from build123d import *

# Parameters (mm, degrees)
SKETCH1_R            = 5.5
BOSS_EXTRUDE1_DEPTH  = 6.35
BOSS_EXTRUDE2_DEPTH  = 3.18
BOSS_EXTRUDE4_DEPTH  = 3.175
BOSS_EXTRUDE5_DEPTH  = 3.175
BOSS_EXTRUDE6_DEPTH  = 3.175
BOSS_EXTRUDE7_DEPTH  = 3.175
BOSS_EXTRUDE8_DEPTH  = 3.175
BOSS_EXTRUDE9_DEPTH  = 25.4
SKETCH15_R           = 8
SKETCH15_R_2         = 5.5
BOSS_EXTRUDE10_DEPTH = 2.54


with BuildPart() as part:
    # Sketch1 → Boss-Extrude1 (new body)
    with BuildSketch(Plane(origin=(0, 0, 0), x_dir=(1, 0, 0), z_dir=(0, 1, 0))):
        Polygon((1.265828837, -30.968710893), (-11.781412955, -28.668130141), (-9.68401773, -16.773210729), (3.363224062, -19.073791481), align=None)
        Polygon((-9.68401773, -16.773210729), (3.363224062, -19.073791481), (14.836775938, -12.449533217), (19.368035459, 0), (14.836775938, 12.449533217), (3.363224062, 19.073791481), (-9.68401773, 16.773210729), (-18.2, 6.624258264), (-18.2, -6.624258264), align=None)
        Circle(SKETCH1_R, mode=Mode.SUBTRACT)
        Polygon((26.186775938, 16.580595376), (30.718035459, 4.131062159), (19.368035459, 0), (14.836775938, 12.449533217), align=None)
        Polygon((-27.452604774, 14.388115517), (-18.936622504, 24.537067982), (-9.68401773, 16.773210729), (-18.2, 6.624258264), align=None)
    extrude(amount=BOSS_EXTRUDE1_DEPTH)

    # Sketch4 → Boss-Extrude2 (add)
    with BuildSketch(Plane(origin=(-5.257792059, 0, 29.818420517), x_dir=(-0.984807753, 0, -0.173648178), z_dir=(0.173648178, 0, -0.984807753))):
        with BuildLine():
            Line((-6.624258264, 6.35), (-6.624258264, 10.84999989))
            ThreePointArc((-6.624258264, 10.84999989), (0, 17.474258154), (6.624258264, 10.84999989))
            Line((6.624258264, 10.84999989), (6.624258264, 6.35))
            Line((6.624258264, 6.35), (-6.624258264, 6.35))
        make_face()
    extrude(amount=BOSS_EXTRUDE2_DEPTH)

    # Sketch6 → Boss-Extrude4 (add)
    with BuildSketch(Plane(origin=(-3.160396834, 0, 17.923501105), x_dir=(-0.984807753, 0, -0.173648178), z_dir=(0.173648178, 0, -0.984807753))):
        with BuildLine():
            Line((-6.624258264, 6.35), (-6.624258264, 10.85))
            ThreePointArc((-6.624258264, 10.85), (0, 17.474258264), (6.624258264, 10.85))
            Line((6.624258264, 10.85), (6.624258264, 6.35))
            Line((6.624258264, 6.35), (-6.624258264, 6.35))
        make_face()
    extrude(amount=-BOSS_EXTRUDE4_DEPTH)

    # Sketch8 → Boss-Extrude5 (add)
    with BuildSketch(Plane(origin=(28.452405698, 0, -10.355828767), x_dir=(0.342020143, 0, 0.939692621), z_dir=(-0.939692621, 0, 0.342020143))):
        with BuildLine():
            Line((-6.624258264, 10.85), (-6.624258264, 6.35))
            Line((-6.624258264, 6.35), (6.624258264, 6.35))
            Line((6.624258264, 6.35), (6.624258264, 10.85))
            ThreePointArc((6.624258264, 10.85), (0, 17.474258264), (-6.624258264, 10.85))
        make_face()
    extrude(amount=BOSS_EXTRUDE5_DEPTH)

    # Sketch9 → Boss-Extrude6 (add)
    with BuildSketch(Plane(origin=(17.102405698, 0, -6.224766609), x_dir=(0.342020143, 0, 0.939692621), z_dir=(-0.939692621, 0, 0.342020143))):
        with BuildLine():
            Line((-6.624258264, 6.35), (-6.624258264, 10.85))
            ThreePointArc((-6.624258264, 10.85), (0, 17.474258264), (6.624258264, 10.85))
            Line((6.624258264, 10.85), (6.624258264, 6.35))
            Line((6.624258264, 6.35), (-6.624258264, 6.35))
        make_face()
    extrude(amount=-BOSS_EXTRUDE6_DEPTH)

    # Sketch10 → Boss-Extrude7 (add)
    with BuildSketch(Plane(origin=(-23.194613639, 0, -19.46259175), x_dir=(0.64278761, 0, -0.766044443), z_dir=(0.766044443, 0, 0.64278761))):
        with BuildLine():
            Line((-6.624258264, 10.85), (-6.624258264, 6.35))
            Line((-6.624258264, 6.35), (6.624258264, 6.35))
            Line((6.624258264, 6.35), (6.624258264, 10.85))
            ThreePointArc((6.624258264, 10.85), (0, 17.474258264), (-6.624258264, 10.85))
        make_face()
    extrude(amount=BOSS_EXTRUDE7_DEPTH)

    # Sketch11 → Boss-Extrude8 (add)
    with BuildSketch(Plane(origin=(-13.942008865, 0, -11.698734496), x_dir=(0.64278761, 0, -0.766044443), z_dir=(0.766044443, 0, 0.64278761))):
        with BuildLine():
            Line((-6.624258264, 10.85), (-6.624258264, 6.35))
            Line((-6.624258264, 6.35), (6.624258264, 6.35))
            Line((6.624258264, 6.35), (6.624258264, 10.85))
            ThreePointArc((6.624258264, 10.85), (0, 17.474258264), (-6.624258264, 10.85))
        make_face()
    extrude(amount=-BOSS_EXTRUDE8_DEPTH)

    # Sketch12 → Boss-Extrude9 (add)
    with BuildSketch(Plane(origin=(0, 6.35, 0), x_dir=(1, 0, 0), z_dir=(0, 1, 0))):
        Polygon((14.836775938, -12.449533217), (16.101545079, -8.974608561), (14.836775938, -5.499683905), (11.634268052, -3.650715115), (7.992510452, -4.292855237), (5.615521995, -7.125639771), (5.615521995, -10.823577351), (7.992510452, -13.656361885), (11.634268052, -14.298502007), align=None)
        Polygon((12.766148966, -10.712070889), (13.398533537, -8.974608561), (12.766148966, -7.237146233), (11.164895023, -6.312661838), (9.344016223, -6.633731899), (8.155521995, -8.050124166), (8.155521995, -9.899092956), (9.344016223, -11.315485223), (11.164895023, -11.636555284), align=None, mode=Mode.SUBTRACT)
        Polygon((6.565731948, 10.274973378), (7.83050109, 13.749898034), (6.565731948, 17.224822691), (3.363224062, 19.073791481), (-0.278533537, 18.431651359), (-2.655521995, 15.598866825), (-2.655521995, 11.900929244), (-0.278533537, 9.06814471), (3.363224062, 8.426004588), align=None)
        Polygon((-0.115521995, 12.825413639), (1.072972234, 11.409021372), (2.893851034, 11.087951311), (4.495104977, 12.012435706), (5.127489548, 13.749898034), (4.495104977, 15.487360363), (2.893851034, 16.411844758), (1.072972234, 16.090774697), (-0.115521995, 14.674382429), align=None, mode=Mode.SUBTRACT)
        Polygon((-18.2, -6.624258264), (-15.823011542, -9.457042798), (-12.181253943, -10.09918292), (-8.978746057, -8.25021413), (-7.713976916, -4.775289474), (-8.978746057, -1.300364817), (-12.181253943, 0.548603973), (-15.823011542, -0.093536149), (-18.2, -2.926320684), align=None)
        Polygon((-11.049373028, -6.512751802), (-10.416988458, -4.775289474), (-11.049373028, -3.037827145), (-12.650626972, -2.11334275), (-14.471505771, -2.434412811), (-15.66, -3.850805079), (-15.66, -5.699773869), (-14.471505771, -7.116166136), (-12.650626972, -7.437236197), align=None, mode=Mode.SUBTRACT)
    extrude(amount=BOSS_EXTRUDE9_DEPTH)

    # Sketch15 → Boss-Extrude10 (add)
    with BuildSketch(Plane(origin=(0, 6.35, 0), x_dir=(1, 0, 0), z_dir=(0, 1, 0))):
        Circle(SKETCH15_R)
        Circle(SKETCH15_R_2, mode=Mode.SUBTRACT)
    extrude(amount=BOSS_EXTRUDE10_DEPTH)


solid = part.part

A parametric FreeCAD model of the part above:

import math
import FreeCAD as App
import Part
import Sketcher

V = App.Vector
Q = App.Units.Quantity

doc = App.newDocument("Part")
body = doc.addObject("PartDesign::Body", "Body")

sketch1 = body.newObject("Sketcher::SketchObject", "Sketch")
sketch1.AttachmentSupport = (doc.getObject("XZ_Plane"), [""])
sketch1.MapMode = "FlatFace"
sketch1.addGeometry([
    Part.LineSegment(V(-12, 29, 0), V(1, 31, 0)),
    Part.LineSegment(V(1, 31, 0), V(3, 19, 0)),
    Part.LineSegment(V(3, 19, 0), V(15, 12, 0)),
    Part.LineSegment(V(15, 12, 0), V(19, 0, 0)),
    Part.LineSegment(V(19, 0, 0), V(31, -4, 0)),
    Part.LineSegment(V(31, -4, 0), V(26, -17, 0)),
    Part.LineSegment(V(26, -17, 0), V(15, -12, 0)),
    Part.LineSegment(V(15, -12, 0), V(3, -19, 0)),
    Part.LineSegment(V(3, -19, 0), V(-10, -17, 0)),
    Part.LineSegment(V(-10, -17, 0), V(-19, -25, 0)),
    Part.LineSegment(V(-19, -25, 0), V(-27, -14, 0)),
    Part.LineSegment(V(-27, -14, 0), V(-18, -7, 0)),
    Part.LineSegment(V(-18, -7, 0), V(-18, 7, 0)),
    Part.LineSegment(V(-18, 7, 0), V(-10, 17, 0)),
    Part.LineSegment(V(-10, 17, 0), V(-12, 29, 0)),
    Part.Circle(V(0, 0, 0), V(0, 0, 1), 6),
], False)
sketch1.addConstraint([
    Sketcher.Constraint("Coincident", 0, 2, 1, 1),
    Sketcher.Constraint("Coincident", 1, 2, 2, 1),
    Sketcher.Constraint("Coincident", 2, 2, 3, 1),
    Sketcher.Constraint("Coincident", 3, 2, 4, 1),
    Sketcher.Constraint("Coincident", 4, 2, 5, 1),
    Sketcher.Constraint("Coincident", 5, 2, 6, 1),
    Sketcher.Constraint("Coincident", 6, 2, 7, 1),
    Sketcher.Constraint("Coincident", 7, 2, 8, 1),
    Sketcher.Constraint("Coincident", 8, 2, 9, 1),
    Sketcher.Constraint("Coincident", 9, 2, 10, 1),
    Sketcher.Constraint("Coincident", 10, 2, 11, 1),
    Sketcher.Constraint("Coincident", 11, 2, 12, 1),
    Sketcher.Constraint("Coincident", 12, 2, 13, 1),
    Sketcher.Constraint("Coincident", 13, 2, 14, 1),
    Sketcher.Constraint("Coincident", 14, 2, 0, 1),
    Sketcher.Constraint("Vertical", 12),
    Sketcher.Constraint("Coincident", 15, 3, -1, 1),
    Sketcher.Constraint("Symmetric", 2, 2, 6, 2, -1),
    Sketcher.Constraint("Symmetric", 1, 2, 7, 2, -1),
    Sketcher.Constraint("Symmetric", 8, 2, 13, 2, -1),
    Sketcher.Constraint("PointOnObject", 3, 2, -1),
    Sketcher.Constraint("Perpendicular", 0, 1),
    Sketcher.Constraint("Perpendicular", 4, 5),
    Sketcher.Constraint("Perpendicular", 5, 6),
    Sketcher.Constraint("Perpendicular", 9, 10),
    Sketcher.Constraint("Perpendicular", 10, 11),
    Sketcher.Constraint("Parallel", 1, 14),
    Sketcher.Constraint("Equal", 0, 2),
    Sketcher.Constraint("Equal", 2, 3),
    Sketcher.Constraint("Equal", 1, 4),
    Sketcher.Constraint("Equal", 4, 6),
    Sketcher.Constraint("Equal", 6, 9),
    Sketcher.Constraint("Equal", 8, 10),
    Sketcher.Constraint("Equal", 9, 11),
    Sketcher.Constraint("Equal", 10, 13),
    Sketcher.Constraint("Equal", 11, 14),
    Sketcher.Constraint("Angle", 0, Q("10 deg")),
    Sketcher.Constraint("Angle", 2, Q("-30 deg")),
    Sketcher.Constraint("Angle", 3, Q("-70 deg")),
    Sketcher.Constraint("Angle", 9, Q("-140 deg")),
    Sketcher.Constraint("Diameter", 15, 11.0),
    Sketcher.Constraint("DistanceX", 11, 2, -1, 1, 18.2),
    Sketcher.Constraint("DistanceX", 3, 2, 4, 2, 11.35),
    Sketcher.Constraint("DistanceX", 9, 2, 6, 2, 33.773398),
])
pad1 = body.newObject("PartDesign::Pad", "Pad")
pad1.Profile = sketch1
pad1.Length = Q("0.25 in")
pad1.Reversed = True

sketch2 = body.newObject("Sketcher::SketchObject", "Sketch001")
sketch2.Placement = App.Placement(V(-5.257792, 0, 29.818421), App.Rotation(V(-0.984807753, 0, -0.173648178), V(0, 1, 0), V(0.173648178, 0, -0.984807753), "ZXY"))
sketch2.addGeometry([
    Part.LineSegment(V(-6.6, 10.8, 0), V(-6.6, 6.4, 0)),
    Part.LineSegment(V(-6.6, 6.4, 0), V(6.6, 6.4, 0)),
    Part.LineSegment(V(6.6, 6.4, 0), V(6.6, 10.8, 0)),
    Part.ArcOfCircle(Part.Circle(V(0, 10.8, 0), V(0, 0, 1), 6.6), math.radians(0), math.radians(180)),
], False)
sketch2.addConstraint([
    Sketcher.Constraint("Coincident", 0, 2, 1, 1),
    Sketcher.Constraint("Coincident", 1, 2, 2, 1),
    Sketcher.Constraint("Tangent", 2, 2, 3, 1),
    Sketcher.Constraint("Tangent", 3, 2, 0, 1),
    Sketcher.Constraint("Vertical", 0),
    Sketcher.Constraint("Horizontal", 1),
    Sketcher.Constraint("Vertical", 2),
    Sketcher.Constraint("PointOnObject", 3, 3, -2),
    Sketcher.Constraint("DistanceY", -1, 1, 0, 2, Q("0.25 in")),
    Sketcher.Constraint("Radius", 3, 6.624258),
    Sketcher.Constraint("DistanceY", 0, 2, 0, 1, 4.5),
])
pad2 = body.newObject("PartDesign::Pad", "Pad001")
pad2.Profile = sketch2
pad2.Length = 3.18

sketch3 = body.newObject("Sketcher::SketchObject", "Sketch002")
sketch3.Placement = App.Placement(V(-3.160397, 0, 17.923501), App.Rotation(V(-0.984807753, 0, -0.173648178), V(0, 1, 0), V(0.173648178, 0, -0.984807753), "ZXY"))
sketch3.addGeometry([
    Part.LineSegment(V(-6.6, 10.9, 0), V(-6.6, 6.4, 0)),
    Part.LineSegment(V(-6.6, 6.4, 0), V(6.6, 6.4, 0)),
    Part.LineSegment(V(6.6, 6.4, 0), V(6.6, 10.9, 0)),
    Part.ArcOfCircle(Part.Circle(V(0, 10.9, 0), V(0, 0, 1), 6.6), math.radians(0), math.radians(180)),
], False)
sketch3.addConstraint([
    Sketcher.Constraint("Coincident", 0, 2, 1, 1),
    Sketcher.Constraint("Coincident", 1, 2, 2, 1),
    Sketcher.Constraint("Tangent", 2, 2, 3, 1),
    Sketcher.Constraint("Tangent", 3, 2, 0, 1),
    Sketcher.Constraint("Vertical", 0),
    Sketcher.Constraint("Horizontal", 1),
    Sketcher.Constraint("Vertical", 2),
    Sketcher.Constraint("PointOnObject", 3, 3, -2),
    Sketcher.Constraint("DistanceY", -1, 1, 0, 2, Q("0.25 in")),
    Sketcher.Constraint("Radius", 3, 6.624258),
    Sketcher.Constraint("DistanceY", 0, 2, 0, 1, 4.5),
])
pad3 = body.newObject("PartDesign::Pad", "Pad002")
pad3.Profile = sketch3
pad3.Length = Q("0.125 in")
pad3.Reversed = True

sketch4 = body.newObject("Sketcher::SketchObject", "Sketch003")
sketch4.Placement = App.Placement(V(28.452406, 0, -10.355829), App.Rotation(V(0.342020143, 0, 0.939692621), V(0, 1, 0), V(-0.939692621, 0, 0.342020143), "ZXY"))
sketch4.addGeometry([
    Part.LineSegment(V(-6.6, 10.9, 0), V(-6.6, 6.4, 0)),
    Part.LineSegment(V(-6.6, 6.4, 0), V(6.6, 6.4, 0)),
    Part.LineSegment(V(6.6, 6.4, 0), V(6.6, 10.9, 0)),
    Part.ArcOfCircle(Part.Circle(V(0, 10.9, 0), V(0, 0, 1), 6.6), math.radians(0), math.radians(180)),
], False)
sketch4.addConstraint([
    Sketcher.Constraint("Coincident", 0, 2, 1, 1),
    Sketcher.Constraint("Coincident", 1, 2, 2, 1),
    Sketcher.Constraint("Tangent", 2, 2, 3, 1),
    Sketcher.Constraint("Tangent", 3, 2, 0, 1),
    Sketcher.Constraint("Vertical", 0),
    Sketcher.Constraint("Horizontal", 1),
    Sketcher.Constraint("Vertical", 2),
    Sketcher.Constraint("PointOnObject", 3, 3, -2),
    Sketcher.Constraint("DistanceY", -1, 1, 0, 2, Q("0.25 in")),
    Sketcher.Constraint("Radius", 3, 6.624258),
    Sketcher.Constraint("DistanceY", 0, 2, 0, 1, 4.5),
])
pad4 = body.newObject("PartDesign::Pad", "Pad003")
pad4.Profile = sketch4
pad4.Length = Q("0.125 in")

sketch5 = body.newObject("Sketcher::SketchObject", "Sketch004")
sketch5.Placement = App.Placement(V(17.102406, 0, -6.224767), App.Rotation(V(0.342020143, 0, 0.939692621), V(0, 1, 0), V(-0.939692621, 0, 0.342020143), "ZXY"))
sketch5.addGeometry([
    Part.LineSegment(V(-6.6, 10.9, 0), V(-6.6, 6.4, 0)),
    Part.LineSegment(V(-6.6, 6.4, 0), V(6.6, 6.4, 0)),
    Part.LineSegment(V(6.6, 6.4, 0), V(6.6, 10.9, 0)),
    Part.ArcOfCircle(Part.Circle(V(0, 10.9, 0), V(0, 0, 1), 6.6), math.radians(0), math.radians(180)),
], False)
sketch5.addConstraint([
    Sketcher.Constraint("Coincident", 0, 2, 1, 1),
    Sketcher.Constraint("Coincident", 1, 2, 2, 1),
    Sketcher.Constraint("Tangent", 2, 2, 3, 1),
    Sketcher.Constraint("Tangent", 3, 2, 0, 1),
    Sketcher.Constraint("Vertical", 0),
    Sketcher.Constraint("Horizontal", 1),
    Sketcher.Constraint("Vertical", 2),
    Sketcher.Constraint("PointOnObject", 3, 3, -2),
    Sketcher.Constraint("DistanceY", -1, 1, 0, 2, Q("0.25 in")),
    Sketcher.Constraint("Radius", 3, 6.624258),
    Sketcher.Constraint("DistanceY", 0, 2, 0, 1, 4.5),
])
pad5 = body.newObject("PartDesign::Pad", "Pad004")
pad5.Profile = sketch5
pad5.Length = Q("0.125 in")
pad5.Reversed = True

sketch6 = body.newObject("Sketcher::SketchObject", "Sketch005")
sketch6.Placement = App.Placement(V(-23.194614, 0, -19.462592), App.Rotation(V(0.64278761, 0, -0.766044443), V(0, 1, 0), V(0.766044443, 0, 0.64278761), "ZXY"))
sketch6.addGeometry([
    Part.LineSegment(V(-6.6, 10.9, 0), V(-6.6, 6.4, 0)),
    Part.LineSegment(V(-6.6, 6.4, 0), V(6.6, 6.4, 0)),
    Part.LineSegment(V(6.6, 6.4, 0), V(6.6, 10.9, 0)),
    Part.ArcOfCircle(Part.Circle(V(0, 10.9, 0), V(0, 0, 1), 6.6), math.radians(0), math.radians(180)),
], False)
sketch6.addConstraint([
    Sketcher.Constraint("Coincident", 0, 2, 1, 1),
    Sketcher.Constraint("Coincident", 1, 2, 2, 1),
    Sketcher.Constraint("Tangent", 2, 2, 3, 1),
    Sketcher.Constraint("Tangent", 3, 2, 0, 1),
    Sketcher.Constraint("Vertical", 0),
    Sketcher.Constraint("Horizontal", 1),
    Sketcher.Constraint("Vertical", 2),
    Sketcher.Constraint("PointOnObject", 3, 3, -2),
    Sketcher.Constraint("DistanceY", -1, 1, 0, 2, Q("0.25 in")),
    Sketcher.Constraint("Radius", 3, 6.624258),
    Sketcher.Constraint("DistanceY", 0, 2, 0, 1, 4.5),
])
pad6 = body.newObject("PartDesign::Pad", "Pad005")
pad6.Profile = sketch6
pad6.Length = Q("0.125 in")

sketch7 = body.newObject("Sketcher::SketchObject", "Sketch006")
sketch7.Placement = App.Placement(V(-13.942009, 0, -11.698734), App.Rotation(V(0.64278761, 0, -0.766044443), V(0, 1, 0), V(0.766044443, 0, 0.64278761), "ZXY"))
sketch7.addGeometry([
    Part.LineSegment(V(-6.6, 10.9, 0), V(-6.6, 6.4, 0)),
    Part.LineSegment(V(-6.6, 6.4, 0), V(6.6, 6.4, 0)),
    Part.LineSegment(V(6.6, 6.4, 0), V(6.6, 10.9, 0)),
    Part.ArcOfCircle(Part.Circle(V(0, 10.9, 0), V(0, 0, 1), 6.6), math.radians(0), math.radians(180)),
], False)
sketch7.addConstraint([
    Sketcher.Constraint("Coincident", 0, 2, 1, 1),
    Sketcher.Constraint("Coincident", 1, 2, 2, 1),
    Sketcher.Constraint("Tangent", 2, 2, 3, 1),
    Sketcher.Constraint("Tangent", 3, 2, 0, 1),
    Sketcher.Constraint("Vertical", 0),
    Sketcher.Constraint("Horizontal", 1),
    Sketcher.Constraint("Vertical", 2),
    Sketcher.Constraint("PointOnObject", 3, 3, -2),
    Sketcher.Constraint("DistanceY", -1, 1, 0, 2, Q("0.25 in")),
    Sketcher.Constraint("Radius", 3, 6.624258),
    Sketcher.Constraint("DistanceY", 0, 2, 0, 1, 4.5),
])
pad7 = body.newObject("PartDesign::Pad", "Pad006")
pad7.Profile = sketch7
pad7.Length = Q("0.125 in")
pad7.Reversed = True

sketch8 = body.newObject("Sketcher::SketchObject", "Sketch007")
sketch8.AttachmentSupport = (doc.getObject("XZ_Plane"), [""])
sketch8.MapMode = "FlatFace"
sketch8.AttachmentOffset = App.Placement(V(0, 0, -0.25 * 25.4), App.Rotation())
sketch8.addGeometry([
    Part.LineSegment(V(14.8, 12.4, 0), V(16.1, 9, 0)),
    Part.LineSegment(V(16.1, 9, 0), V(14.8, 5.5, 0)),
    Part.LineSegment(V(14.8, 5.5, 0), V(11.6, 3.7, 0)),
    Part.LineSegment(V(11.6, 3.7, 0), V(8, 4.3, 0)),
    Part.LineSegment(V(8, 4.3, 0), V(5.6, 7.1, 0)),
    Part.LineSegment(V(5.6, 7.1, 0), V(5.6, 10.8, 0)),
    Part.LineSegment(V(5.6, 10.8, 0), V(8, 13.7, 0)),
    Part.LineSegment(V(8, 13.7, 0), V(11.6, 14.3, 0)),
    Part.LineSegment(V(11.6, 14.3, 0), V(14.8, 12.4, 0)),
    Part.LineSegment(V(13.4, 9, 0), V(12.8, 10.7, 0)),
    Part.LineSegment(V(12.8, 10.7, 0), V(11.2, 11.6, 0)),
    Part.LineSegment(V(11.2, 11.6, 0), V(9.3, 11.3, 0)),
    Part.LineSegment(V(9.3, 11.3, 0), V(8.2, 9.9, 0)),
    Part.LineSegment(V(8.2, 9.9, 0), V(8.2, 8.1, 0)),
    Part.LineSegment(V(8.2, 8.1, 0), V(9.3, 6.6, 0)),
    Part.LineSegment(V(9.3, 6.6, 0), V(11.2, 6.3, 0)),
    Part.LineSegment(V(11.2, 6.3, 0), V(12.8, 7.2, 0)),
    Part.LineSegment(V(12.8, 7.2, 0), V(13.4, 9, 0)),
    Part.LineSegment(V(6.6, -10.3, 0), V(7.8, -13.7, 0)),
    Part.LineSegment(V(7.8, -13.7, 0), V(6.6, -17.2, 0)),
    Part.LineSegment(V(6.6, -17.2, 0), V(3.4, -19.1, 0)),
    Part.LineSegment(V(3.4, -19.1, 0), V(-0.3, -18.4, 0)),
    Part.LineSegment(V(-0.3, -18.4, 0), V(-2.7, -15.6, 0)),
    Part.LineSegment(V(-2.7, -15.6, 0), V(-2.7, -11.9, 0)),
    Part.LineSegment(V(-2.7, -11.9, 0), V(-0.3, -9.1, 0)),
    Part.LineSegment(V(-0.3, -9.1, 0), V(3.4, -8.4, 0)),
    Part.LineSegment(V(3.4, -8.4, 0), V(6.6, -10.3, 0)),
    Part.LineSegment(V(1.1, -11.4, 0), V(-0.1, -12.8, 0)),
    Part.LineSegment(V(-0.1, -12.8, 0), V(-0.1, -14.7, 0)),
    Part.LineSegment(V(-0.1, -14.7, 0), V(1.1, -16.1, 0)),
    Part.LineSegment(V(1.1, -16.1, 0), V(2.9, -16.4, 0)),
    Part.LineSegment(V(2.9, -16.4, 0), V(4.5, -15.5, 0)),
    Part.LineSegment(V(4.5, -15.5, 0), V(5.1, -13.7, 0)),
    Part.LineSegment(V(5.1, -13.7, 0), V(4.5, -12, 0)),
    Part.LineSegment(V(4.5, -12, 0), V(2.9, -11.1, 0)),
    Part.LineSegment(V(2.9, -11.1, 0), V(1.1, -11.4, 0)),
    Part.LineSegment(V(-18.2, 6.6, 0), V(-15.8, 9.5, 0)),
    Part.LineSegment(V(-15.8, 9.5, 0), V(-12.2, 10.1, 0)),
    Part.LineSegment(V(-12.2, 10.1, 0), V(-9, 8.3, 0)),
    Part.LineSegment(V(-9, 8.3, 0), V(-7.7, 4.8, 0)),
    Part.LineSegment(V(-7.7, 4.8, 0), V(-9, 1.3, 0)),
    Part.LineSegment(V(-9, 1.3, 0), V(-12.2, -0.5, 0)),
    Part.LineSegment(V(-12.2, -0.5, 0), V(-15.8, 0.1, 0)),
    Part.LineSegment(V(-15.8, 0.1, 0), V(-18.2, 2.9, 0)),
    Part.LineSegment(V(-18.2, 2.9, 0), V(-18.2, 6.6, 0)),
    Part.LineSegment(V(-10.4, 4.8, 0), V(-11, 6.5, 0)),
    Part.LineSegment(V(-11, 6.5, 0), V(-12.7, 7.4, 0)),
    Part.LineSegment(V(-12.7, 7.4, 0), V(-14.5, 7.1, 0)),
    Part.LineSegment(V(-14.5, 7.1, 0), V(-15.7, 5.7, 0)),
    Part.LineSegment(V(-15.7, 5.7, 0), V(-15.7, 3.9, 0)),
    Part.LineSegment(V(-15.7, 3.9, 0), V(-14.5, 2.4, 0)),
    Part.LineSegment(V(-14.5, 2.4, 0), V(-12.7, 2.1, 0)),
    Part.LineSegment(V(-12.7, 2.1, 0), V(-11, 3, 0)),
    Part.LineSegment(V(-11, 3, 0), V(-10.4, 4.8, 0)),
], False)
sketch8.addConstraint([
    Sketcher.Constraint("Coincident", 0, 2, 1, 1),
    Sketcher.Constraint("Coincident", 1, 2, 2, 1),
    Sketcher.Constraint("Coincident", 2, 2, 3, 1),
    Sketcher.Constraint("Coincident", 3, 2, 4, 1),
    Sketcher.Constraint("Coincident", 4, 2, 5, 1),
    Sketcher.Constraint("Coincident", 5, 2, 6, 1),
    Sketcher.Constraint("Coincident", 6, 2, 7, 1),
    Sketcher.Constraint("Coincident", 7, 2, 8, 1),
    Sketcher.Constraint("Coincident", 8, 2, 0, 1),
    Sketcher.Constraint("Coincident", 9, 2, 10, 1),
    Sketcher.Constraint("Coincident", 10, 2, 11, 1),
    Sketcher.Constraint("Coincident", 11, 2, 12, 1),
    Sketcher.Constraint("Coincident", 12, 2, 13, 1),
    Sketcher.Constraint("Coincident", 13, 2, 14, 1),
    Sketcher.Constraint("Coincident", 14, 2, 15, 1),
    Sketcher.Constraint("Coincident", 15, 2, 16, 1),
    Sketcher.Constraint("Coincident", 16, 2, 17, 1),
    Sketcher.Constraint("Coincident", 17, 2, 9, 1),
    Sketcher.Constraint("Coincident", 18, 2, 19, 1),
    Sketcher.Constraint("Coincident", 19, 2, 20, 1),
    Sketcher.Constraint("Coincident", 20, 2, 21, 1),
    Sketcher.Constraint("Coincident", 21, 2, 22, 1),
    Sketcher.Constraint("Coincident", 22, 2, 23, 1),
    Sketcher.Constraint("Coincident", 23, 2, 24, 1),
    Sketcher.Constraint("Coincident", 24, 2, 25, 1),
    Sketcher.Constraint("Coincident", 25, 2, 26, 1),
    Sketcher.Constraint("Coincident", 26, 2, 18, 1),
    Sketcher.Constraint("Coincident", 27, 2, 28, 1),
    Sketcher.Constraint("Coincident", 28, 2, 29, 1),
    Sketcher.Constraint("Coincident", 29, 2, 30, 1),
    Sketcher.Constraint("Coincident", 30, 2, 31, 1),
    Sketcher.Constraint("Coincident", 31, 2, 32, 1),
    Sketcher.Constraint("Coincident", 32, 2, 33, 1),
    Sketcher.Constraint("Coincident", 33, 2, 34, 1),
    Sketcher.Constraint("Coincident", 34, 2, 35, 1),
    Sketcher.Constraint("Coincident", 35, 2, 27, 1),
    Sketcher.Constraint("Coincident", 36, 2, 37, 1),
    Sketcher.Constraint("Coincident", 37, 2, 38, 1),
    Sketcher.Constraint("Coincident", 38, 2, 39, 1),
    Sketcher.Constraint("Coincident", 39, 2, 40, 1),
    Sketcher.Constraint("Coincident", 40, 2, 41, 1),
    Sketcher.Constraint("Coincident", 41, 2, 42, 1),
    Sketcher.Constraint("Coincident", 42, 2, 43, 1),
    Sketcher.Constraint("Coincident", 43, 2, 44, 1),
    Sketcher.Constraint("Coincident", 44, 2, 36, 1),
    Sketcher.Constraint("Coincident", 45, 2, 46, 1),
    Sketcher.Constraint("Coincident", 46, 2, 47, 1),
    Sketcher.Constraint("Coincident", 47, 2, 48, 1),
    Sketcher.Constraint("Coincident", 48, 2, 49, 1),
    Sketcher.Constraint("Coincident", 49, 2, 50, 1),
    Sketcher.Constraint("Coincident", 50, 2, 51, 1),
    Sketcher.Constraint("Coincident", 51, 2, 52, 1),
    Sketcher.Constraint("Coincident", 52, 2, 53, 1),
    Sketcher.Constraint("Coincident", 53, 2, 45, 1),
    Sketcher.Constraint("Vertical", 5),
    Sketcher.Constraint("Vertical", 13),
    Sketcher.Constraint("Vertical", 23),
    Sketcher.Constraint("Vertical", 28),
    Sketcher.Constraint("Vertical", 44),
    Sketcher.Constraint("Vertical", 49),
    Sketcher.Constraint("Parallel", 0, 9),
    Sketcher.Constraint("Parallel", 8, 10),
    Sketcher.Constraint("Parallel", 7, 11),
    Sketcher.Constraint("Parallel", 6, 12),
    Sketcher.Constraint("Parallel", 4, 14),
    Sketcher.Constraint("Parallel", 3, 15),
    Sketcher.Constraint("Parallel", 2, 16),
    Sketcher.Constraint("Parallel", 1, 17),
    Sketcher.Constraint("Parallel", 9, 18),
    Sketcher.Constraint("Parallel", 17, 19),
    Sketcher.Constraint("Parallel", 16, 20),
    Sketcher.Constraint("Parallel", 15, 21),
    Sketcher.Constraint("Parallel", 14, 22),
    Sketcher.Constraint("Parallel", 12, 24),
    Sketcher.Constraint("Parallel", 11, 25),
    Sketcher.Constraint("Parallel", 10, 26),
    Sketcher.Constraint("Parallel", 24, 27),
    Sketcher.Constraint("Parallel", 22, 29),
    Sketcher.Constraint("Parallel", 21, 30),
    Sketcher.Constraint("Parallel", 20, 31),
    Sketcher.Constraint("Parallel", 19, 32),
    Sketcher.Constraint("Parallel", 18, 33),
    Sketcher.Constraint("Parallel", 26, 34),
    Sketcher.Constraint("Parallel", 25, 35),
    Sketcher.Constraint("Parallel", 27, 36),
    Sketcher.Constraint("Parallel", 35, 37),
    Sketcher.Constraint("Parallel", 34, 38),
    Sketcher.Constraint("Parallel", 33, 39),
    Sketcher.Constraint("Parallel", 32, 40),
    Sketcher.Constraint("Parallel", 31, 41),
    Sketcher.Constraint("Parallel", 30, 42),
    Sketcher.Constraint("Parallel", 29, 43),
    Sketcher.Constraint("Parallel", 39, 45),
    Sketcher.Constraint("Parallel", 38, 46),
    Sketcher.Constraint("Parallel", 37, 47),
    Sketcher.Constraint("Parallel", 36, 48),
    Sketcher.Constraint("Parallel", 43, 50),
    Sketcher.Constraint("Parallel", 42, 51),
    Sketcher.Constraint("Parallel", 41, 52),
    Sketcher.Constraint("Parallel", 40, 53),
    Sketcher.Constraint("Horizontal", 0, 2, 17, 2),
    Sketcher.Constraint("Horizontal", 18, 2, 32, 2),
    Sketcher.Constraint("Horizontal", 39, 2, 53, 2),
    Sketcher.Constraint("Vertical", 3, 2, 6, 2),
    Sketcher.Constraint("Vertical", 2, 2, 7, 2),
    Sketcher.Constraint("Vertical", 1, 2, 8, 2),
    Sketcher.Constraint("Vertical", 11, 2, 14, 2),
    Sketcher.Constraint("Vertical", 10, 2, 15, 2),
    Sketcher.Constraint("Vertical", 9, 2, 16, 2),
    Sketcher.Constraint("Vertical", 21, 2, 24, 2),
    Sketcher.Constraint("Vertical", 20, 2, 25, 2),
    Sketcher.Constraint("Vertical", 19, 2, 26, 2),
    Sketcher.Constraint("Vertical", 31, 2, 33, 2),
    Sketcher.Constraint("Vertical", 30, 2, 34, 2),
    Sketcher.Constraint("Vertical", 29, 2, 35, 2),
    Sketcher.Constraint("Vertical", 38, 2, 40, 2),
    Sketcher.Constraint("Vertical", 37, 2, 41, 2),
    Sketcher.Constraint("Vertical", 36, 2, 42, 2),
    Sketcher.Constraint("Vertical", 47, 2, 50, 2),
    Sketcher.Constraint("Vertical", 46, 2, 51, 2),
    Sketcher.Constraint("Vertical", 45, 2, 52, 2),
    Sketcher.Constraint("Equal", 5, 23),
    Sketcher.Constraint("Equal", 13, 28),
    Sketcher.Constraint("Equal", 23, 44),
    Sketcher.Constraint("Equal", 28, 49),
    Sketcher.Constraint("Equal", 0, 1),
    Sketcher.Constraint("Equal", 1, 2),
    Sketcher.Constraint("Equal", 2, 3),
    Sketcher.Constraint("Equal", 3, 4),
    Sketcher.Constraint("Equal", 4, 6),
    Sketcher.Constraint("Equal", 6, 7),
    Sketcher.Constraint("Equal", 7, 8),
    Sketcher.Constraint("Equal", 9, 10),
    Sketcher.Constraint("Equal", 10, 11),
    Sketcher.Constraint("Equal", 11, 12),
    Sketcher.Constraint("Equal", 8, 18),
    Sketcher.Constraint("Equal", 19, 20),
    Sketcher.Constraint("Equal", 20, 21),
    Sketcher.Constraint("Equal", 17, 27),
    Sketcher.Constraint("Equal", 29, 30),
    Sketcher.Constraint("Equal", 30, 31),
    Sketcher.Constraint("Equal", 26, 36),
    Sketcher.Constraint("Equal", 36, 37),
    Sketcher.Constraint("Equal", 37, 38),
    Sketcher.Constraint("Equal", 35, 45),
    Sketcher.Constraint("Equal", 45, 46),
    Sketcher.Constraint("Equal", 46, 47),
    Sketcher.Constraint("Angle", 0, Q("-70 deg")),
    Sketcher.Constraint("Angle", 2, Q("-150 deg")),
    Sketcher.Constraint("Angle", 3, Q("170 deg")),
    Sketcher.Constraint("Angle", 4, Q("130 deg")),
    Sketcher.Constraint("DistanceX", 5, 2, 12, 2, Q("0.1 in")),
    Sketcher.Constraint("DistanceX", 23, 2, 27, 2, Q("0.1 in")),
    Sketcher.Constraint("DistanceX", 44, 2, 48, 2, Q("0.1 in")),
    Sketcher.Constraint("DistanceX", 39, 2, -1, 1, Q("0.3036999 in")),
    Sketcher.Constraint("DistanceY", 13, 2, 13, 1, 1.848969),
    Sketcher.Constraint("DistanceX", -1, 1, 18, 2, 7.830501),
    Sketcher.Constraint("DistanceY", 18, 2, -1, 1, 13.749898),
    Sketcher.Constraint("DistanceX", 43, 2, -1, 1, 18.2),
    Sketcher.Constraint("DistanceX", 21, 2, 2, 2, 11.912802),
    Sketcher.Constraint("DistanceY", -1, 1, 0, 2, 8.974609),
    Sketcher.Constraint("DistanceY", -1, 1, 39, 2, 4.775289),
])
pad8 = body.newObject("PartDesign::Pad", "Pad007")
pad8.Profile = sketch8
pad8.Length = Q("1 in")
pad8.Reversed = True

sketch9 = body.newObject("Sketcher::SketchObject", "Sketch008")
sketch9.AttachmentSupport = (doc.getObject("XZ_Plane"), [""])
sketch9.MapMode = "FlatFace"
sketch9.AttachmentOffset = App.Placement(V(0, 0, -0.25 * 25.4), App.Rotation())
sketch9.addGeometry([
    Part.Circle(V(0, 0, 0), V(0, 0, 1), 8),
    Part.Circle(V(0, 0, 0), V(0, 0, 1), 6),
], False)
sketch9.addConstraint([
    Sketcher.Constraint("Coincident", 0, 3, -1, 1),
    Sketcher.Constraint("Coincident", 1, 3, -1, 1),
    Sketcher.Constraint("Diameter", 0, 16.0),
    Sketcher.Constraint("Diameter", 1, 11.0),
])
pad9 = body.newObject("PartDesign::Pad", "Pad008")
pad9.Profile = sketch9
pad9.Length = Q("0.1 in")
pad9.Reversed = True

doc.recompute()
